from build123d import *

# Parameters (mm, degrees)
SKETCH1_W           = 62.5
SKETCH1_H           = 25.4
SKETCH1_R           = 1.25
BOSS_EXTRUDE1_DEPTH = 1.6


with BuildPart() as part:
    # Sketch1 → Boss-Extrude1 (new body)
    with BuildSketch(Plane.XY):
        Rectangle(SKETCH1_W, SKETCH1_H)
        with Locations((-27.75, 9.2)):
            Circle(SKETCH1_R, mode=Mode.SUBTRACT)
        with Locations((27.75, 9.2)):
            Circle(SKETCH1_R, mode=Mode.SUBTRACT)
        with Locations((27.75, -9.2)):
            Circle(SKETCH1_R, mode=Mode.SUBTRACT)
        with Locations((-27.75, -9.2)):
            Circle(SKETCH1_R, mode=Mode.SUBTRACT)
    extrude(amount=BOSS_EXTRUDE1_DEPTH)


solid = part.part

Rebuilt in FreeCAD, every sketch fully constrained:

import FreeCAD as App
import Part
import Sketcher

V = App.Vector


def add_polygon(sketch, points):
    """Adds a closed chain of lines whose ends are joined by coincident constraints."""
    first, n = sketch.GeometryCount, len(points)
    for a, b in zip(points, points[1:] + points[:1]):
        sketch.addGeometry(Part.LineSegment(App.Vector(*a, 0), App.Vector(*b, 0)), False)
    for i in range(n):
        sketch.addConstraint(Sketcher.Constraint("Coincident", first + i, 2, first + (i + 1) % n, 1))

doc = App.newDocument("Part")
body = doc.addObject("PartDesign::Body", "Body")

sketch1 = body.newObject("Sketcher::SketchObject", "Sketch")
sketch1.AttachmentSupport = (doc.getObject("XY_Plane"), [""])
sketch1.MapMode = "FlatFace"
add_polygon(sketch1, [(-31.2, 12.7), (-31.2, -12.7), (31.2, -12.7), (31.2, 12.7)])
sketch1.addGeometry(Part.Circle(V(-27.8, -9.2, 0), V(0, 0, 1), 1.2), False)
sketch1.addGeometry(Part.Circle(V(27.8, -9.2, 0), V(0, 0, 1), 1.2), False)
sketch1.addGeometry(Part.Circle(V(-27.8, 9.2, 0), V(0, 0, 1), 1.2), False)
sketch1.addGeometry(Part.Circle(V(27.8, 9.2, 0), V(0, 0, 1), 1.2), False)
sketch1.addConstraint([
    Sketcher.Constraint("Vertical", 0),
    Sketcher.Constraint("Horizontal", 1),
    Sketcher.Constraint("Vertical", 2),
    Sketcher.Constraint("Horizontal", 3),
    Sketcher.Constraint("Equal", 4, 5),
    Sketcher.Constraint("Equal", 5, 6),
    Sketcher.Constraint("Equal", 6, 7),
    Sketcher.Constraint("Symmetric", 5, 3, 6, 3, -1, 1),
    Sketcher.Constraint("Symmetric", 4, 3, 7, 3, -1, 1),
    Sketcher.Constraint("Symmetric", 0, 2, 2, 2, -1, 1),
    Sketcher.Constraint("Symmetric", 4, 3, 5, 3, -2),
    Sketcher.Constraint("Diameter", 4, 2.5),
    Sketcher.Constraint("DistanceX", 1, 1, 1, 2, 62.5),
    Sketcher.Constraint("DistanceY", 0, 2, 0, 1, 25.4),
    Sketcher.Constraint("DistanceX", 0, 2, 5, 3, 59.0),
    Sketcher.Constraint("DistanceY", 4, 3, -1, 1, 9.2),
])
pad1 = body.newObject("PartDesign::Pad", "Pad")
pad1.Profile = sketch1
pad1.Length = 1.6

doc.recompute()
